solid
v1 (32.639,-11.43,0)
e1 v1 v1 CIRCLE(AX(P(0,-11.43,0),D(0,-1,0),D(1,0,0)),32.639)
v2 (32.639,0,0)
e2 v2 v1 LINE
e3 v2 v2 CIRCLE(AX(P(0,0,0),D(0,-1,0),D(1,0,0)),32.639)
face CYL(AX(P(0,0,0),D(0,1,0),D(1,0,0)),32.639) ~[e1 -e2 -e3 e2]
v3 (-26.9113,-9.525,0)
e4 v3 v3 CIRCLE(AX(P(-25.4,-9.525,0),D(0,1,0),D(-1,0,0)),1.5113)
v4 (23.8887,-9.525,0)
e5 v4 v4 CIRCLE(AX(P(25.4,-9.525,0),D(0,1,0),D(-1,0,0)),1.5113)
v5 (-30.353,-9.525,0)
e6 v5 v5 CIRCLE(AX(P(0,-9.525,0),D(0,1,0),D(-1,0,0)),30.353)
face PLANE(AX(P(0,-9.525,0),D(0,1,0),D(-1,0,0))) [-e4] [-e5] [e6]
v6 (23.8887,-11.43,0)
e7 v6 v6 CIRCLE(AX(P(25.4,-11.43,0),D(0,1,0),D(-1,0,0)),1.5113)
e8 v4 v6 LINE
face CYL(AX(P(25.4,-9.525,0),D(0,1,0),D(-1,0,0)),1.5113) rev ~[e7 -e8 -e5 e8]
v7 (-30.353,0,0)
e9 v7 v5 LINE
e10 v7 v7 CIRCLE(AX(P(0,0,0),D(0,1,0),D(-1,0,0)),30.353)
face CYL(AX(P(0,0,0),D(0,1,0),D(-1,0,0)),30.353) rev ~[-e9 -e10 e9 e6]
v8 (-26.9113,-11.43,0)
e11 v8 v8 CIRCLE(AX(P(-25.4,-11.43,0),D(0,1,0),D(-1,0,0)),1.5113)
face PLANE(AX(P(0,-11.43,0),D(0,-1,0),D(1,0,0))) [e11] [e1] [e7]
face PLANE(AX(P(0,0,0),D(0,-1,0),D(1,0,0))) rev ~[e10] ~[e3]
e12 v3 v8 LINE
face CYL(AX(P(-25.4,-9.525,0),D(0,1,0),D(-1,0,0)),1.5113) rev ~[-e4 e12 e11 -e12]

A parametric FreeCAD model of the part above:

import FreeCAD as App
import Part
import Sketcher

V = App.Vector
Q = App.Units.Quantity

doc = App.newDocument("Part")
params = doc.addObject("Spreadsheet::Sheet", "Params")
for row, (alias, value) in enumerate([
    ("sketch1_diameter", "2.57 in"),
    ("pad1_length", "0.45 in"),
    ("sketch2_diameter", "2.39 in"),
    ("pocket1_length", "0.375 in"),
    ("sketch3_diameter", "0.119 in"),
    ("pocket2_length", "0.075 in"),
], start=1):
    params.set(f"A{row}", alias)
    params.set(f"B{row}", "=" + value)
    params.setAlias(f"B{row}", alias)

body = doc.addObject("PartDesign::Body", "Body")

sketch1 = body.newObject("Sketcher::SketchObject", "Sketch")
sketch1.AttachmentSupport = (doc.getObject("XZ_Plane"), [""])
sketch1.MapMode = "FlatFace"
sketch1.addGeometry(Part.Circle(V(0, 0, 0), V(0, 0, 1), 32.639), False)
sketch1.addConstraint([
    Sketcher.Constraint("Coincident", 0, 3, -1, 1),
    Sketcher.Constraint("Diameter", 0, Q("2.57 in")),
])
sketch1.setExpression("Constraints[1]", "Params.sketch1_diameter")
pad1 = body.newObject("PartDesign::Pad", "Pad")
pad1.Profile = sketch1
pad1.setExpression("Length", "Params.pad1_length")

sketch2 = body.newObject("Sketcher::SketchObject", "Sketch001")
sketch2.AttachmentSupport = (doc.getObject("XZ_Plane"), [""])
sketch2.MapMode = "FlatFace"
sketch2.addGeometry(Part.Circle(V(0, 0, 0), V(0, 0, 1), 30.353), False)
sketch2.addConstraint([
    Sketcher.Constraint("Coincident", 0, 3, -1, 1),
    Sketcher.Constraint("Diameter", 0, Q("2.39 in")),
])
sketch2.setExpression("Constraints[1]", "Params.sketch2_diameter")
pocket1 = body.newObject("PartDesign::Pocket", "Pocket")
pocket1.Profile = sketch2
pocket1.setExpression("Length", "Params.pocket1_length")
pocket1.Reversed = True

sketch3 = body.newObject("Sketcher::SketchObject", "Sketch002")
sketch3.AttachmentSupport = (doc.getObject("XZ_Plane"), [""])
sketch3.MapMode = "FlatFace"
sketch3.AttachmentOffset = App.Placement(V(0, 0, 0.375 * 25.4), App.Rotation())
sketch3.addGeometry([
    Part.Circle(V(25.4, 0, 0), V(0, 0, 1), 1.5113),
    Part.Circle(V(-25.4, 0, 0), V(0, 0, 1), 1.5113),
], False)
sketch3.addConstraint([
    Sketcher.Constraint("Equal", 0, 1),
    Sketcher.Constraint("Symmetric", 0, 3, 1, 3, -1, 1),
    Sketcher.Constraint("PointOnObject", 0, 3, -1),
    Sketcher.Constraint("Diameter", 0, Q("0.119 in")),
    Sketcher.Constraint("DistanceX", -1, 1, 0, 3, Q("1 in")),
])
sketch3.setExpression("Constraints[3]", "Params.sketch3_diameter")
pocket2 = body.newObject("PartDesign::Pocket", "Pocket001")
pocket2.Profile = sketch3
pocket2.setExpression("Length", "Params.pocket2_length")
pocket2.Reversed = True

doc.recompute()
